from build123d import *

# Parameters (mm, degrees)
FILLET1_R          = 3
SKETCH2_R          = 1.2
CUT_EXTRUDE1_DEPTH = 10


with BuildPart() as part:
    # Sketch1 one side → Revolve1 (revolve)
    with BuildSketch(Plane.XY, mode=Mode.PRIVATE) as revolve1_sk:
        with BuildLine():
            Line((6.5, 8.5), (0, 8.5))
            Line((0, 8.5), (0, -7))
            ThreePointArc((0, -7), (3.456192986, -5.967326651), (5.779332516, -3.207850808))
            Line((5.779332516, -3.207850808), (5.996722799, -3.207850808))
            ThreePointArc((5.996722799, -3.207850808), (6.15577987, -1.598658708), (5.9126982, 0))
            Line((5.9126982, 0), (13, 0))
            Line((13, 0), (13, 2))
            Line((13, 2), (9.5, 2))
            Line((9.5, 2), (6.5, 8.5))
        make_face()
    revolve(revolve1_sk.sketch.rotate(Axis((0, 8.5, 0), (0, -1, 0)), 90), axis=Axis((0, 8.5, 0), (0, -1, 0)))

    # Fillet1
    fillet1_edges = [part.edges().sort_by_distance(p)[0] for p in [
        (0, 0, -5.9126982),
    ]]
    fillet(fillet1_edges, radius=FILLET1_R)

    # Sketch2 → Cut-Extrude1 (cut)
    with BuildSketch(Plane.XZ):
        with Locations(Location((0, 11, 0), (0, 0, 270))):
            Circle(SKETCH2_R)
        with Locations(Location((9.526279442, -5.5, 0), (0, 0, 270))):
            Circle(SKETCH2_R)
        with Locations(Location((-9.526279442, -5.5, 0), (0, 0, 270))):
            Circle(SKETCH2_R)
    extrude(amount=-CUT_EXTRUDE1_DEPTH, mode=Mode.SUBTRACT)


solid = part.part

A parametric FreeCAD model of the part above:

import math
import FreeCAD as App
import Part
import Sketcher


def edges_at(feature, points):
    """Names of the edges that pass closest to the given points."""
    edges = feature.Shape.Edges
    near = lambda p: min(range(len(edges)), key=lambda i: edges[i].distToShape(Part.Vertex(*p))[0])
    return sorted({f"Edge{near(p) + 1}" for p in points})

doc = App.newDocument("Part")
body = doc.addObject("PartDesign::Body", "Body")

sketch1 = body.newObject("Sketcher::SketchObject", "Sketch")
sketch1.AttachmentSupport = (doc.getObject("XY_Plane"), [""])
sketch1.MapMode = "FlatFace"
sketch1.addGeometry(Part.LineSegment(App.Vector(6.5, 8.5, 0), App.Vector(0, 8.5, 0)), False)
sketch1.addGeometry(Part.LineSegment(App.Vector(0, 8.5, 0), App.Vector(0, -7, 0)), False)
sketch1.addGeometry(Part.ArcOfCircle(Part.Circle(App.Vector(0, -0.7, 0), App.Vector(0, 0, 1), 6.3), math.radians(-90), math.radians(-23)), False)
sketch1.addGeometry(Part.LineSegment(App.Vector(5.78, -3.21, 0), App.Vector(6, -3.21, 0)), False)
sketch1.addGeometry(Part.ArcOfCircle(Part.Circle(App.Vector(-0.34, -1.77, 0), App.Vector(0, 0, 1), 6.5), math.radians(-13), math.radians(16)), False)
sketch1.addGeometry(Part.LineSegment(App.Vector(5.91, 0, 0), App.Vector(13, 0, 0)), False)
sketch1.addGeometry(Part.LineSegment(App.Vector(13, 0, 0), App.Vector(13, 2, 0)), False)
sketch1.addGeometry(Part.LineSegment(App.Vector(13, 2, 0), App.Vector(9.5, 2, 0)), False)
sketch1.addGeometry(Part.LineSegment(App.Vector(9.5, 2, 0), App.Vector(6.5, 8.5, 0)), False)
sketch1.addConstraint(Sketcher.Constraint("Coincident", 0, 2, 1, 1))
sketch1.addConstraint(Sketcher.Constraint("Coincident", 1, 2, 2, 1))
sketch1.addConstraint(Sketcher.Constraint("Coincident", 2, 2, 3, 1))
sketch1.addConstraint(Sketcher.Constraint("Coincident", 3, 2, 4, 1))
sketch1.addConstraint(Sketcher.Constraint("Coincident", 4, 2, 5, 1))
sketch1.addConstraint(Sketcher.Constraint("Coincident", 5, 2, 6, 1))
sketch1.addConstraint(Sketcher.Constraint("Coincident", 6, 2, 7, 1))
sketch1.addConstraint(Sketcher.Constraint("Coincident", 7, 2, 8, 1))
sketch1.addConstraint(Sketcher.Constraint("Coincident", 8, 2, 0, 1))
sketch1.addConstraint(Sketcher.Constraint("Horizontal", 0))
sketch1.addConstraint(Sketcher.Constraint("Vertical", 1))
sketch1.addConstraint(Sketcher.Constraint("Horizontal", 3))
sketch1.addConstraint(Sketcher.Constraint("Horizontal", 5))
sketch1.addConstraint(Sketcher.Constraint("Vertical", 6))
sketch1.addConstraint(Sketcher.Constraint("Horizontal", 7))
sketch1.addConstraint(Sketcher.Constraint("PointOnObject", 2, 3, -2))
sketch1.addConstraint(Sketcher.Constraint("PointOnObject", 0, 2, -2))
sketch1.addConstraint(Sketcher.Constraint("PointOnObject", 4, 2, -1))
sketch1.addConstraint(Sketcher.Constraint("Radius", 2, 6.3))
sketch1.addConstraint(Sketcher.Constraint("Radius", 4, 6.5))
sketch1.addConstraint(Sketcher.Constraint("DistanceY", 6, 1, 6, 2, 2.0))
sketch1.addConstraint(Sketcher.Constraint("DistanceX", 0, 2, 0, 1, 6.5))
sketch1.addConstraint(Sketcher.Constraint("DistanceX", 7, 2, 7, 1, 3.5))
sketch1.addConstraint(Sketcher.Constraint("DistanceY", 1, 2, 1, 1, 15.5))
sketch1.addConstraint(Sketcher.Constraint("DistanceY", 1, 2, -1, 1, 7.0))
sketch1.addConstraint(Sketcher.Constraint("DistanceX", -1, 1, 5, 2, 13.0))
sketch1.addConstraint(Sketcher.Constraint("DistanceX", 5, 1, 5, 2, 7.087302))
sketch1.addConstraint(Sketcher.Constraint("DistanceX", 3, 1, 3, 2, 0.21739))
sketch1.addConstraint(Sketcher.Constraint("DistanceX", 4, 3, -1, 1, 0.341991))
revolution = body.newObject("PartDesign::Revolution", "Revolution")
revolution.Profile = sketch1
revolution.ReferenceAxis = (sketch1, ["V_Axis"])
revolution.Angle = 360
doc.recompute()

fillet = body.newObject("PartDesign::Fillet", "Fillet")
fillet.Base = (revolution, edges_at(revolution, [(0, 0, -5.913)]))
fillet.Radius = 3

sketch2 = body.newObject("Sketcher::SketchObject", "Sketch001")
sketch2.AttachmentSupport = (doc.getObject("XZ_Plane"), [""])
sketch2.MapMode = "FlatFace"
sketch2.addGeometry(Part.Circle(App.Vector(0, 11, 0), App.Vector(0, 0, 1), 1.2), False)
sketch2.addGeometry(Part.Circle(App.Vector(9.5, -5.5, 0), App.Vector(0, 0, 1), 1.2), False)
sketch2.addGeometry(Part.Circle(App.Vector(-9.5, -5.5, 0), App.Vector(0, 0, 1), 1.2), False)
sketch2.addConstraint(Sketcher.Constraint("Equal", 0, 1))
sketch2.addConstraint(Sketcher.Constraint("Equal", 1, 2))
sketch2.addConstraint(Sketcher.Constraint("Symmetric", 1, 3, 2, 3, -2))
sketch2.addConstraint(Sketcher.Constraint("PointOnObject", 0, 3, -2))
sketch2.addConstraint(Sketcher.Constraint("Diameter", 0, 2.4))
sketch2.addConstraint(Sketcher.Constraint("DistanceY", -1, 1, 0, 3, 11.0))
sketch2.addConstraint(Sketcher.Constraint("DistanceY", 1, 3, -1, 1, 5.5))
sketch2.addConstraint(Sketcher.Constraint("DistanceX", -1, 1, 1, 3, 9.526279))
pocket1 = body.newObject("PartDesign::Pocket", "Pocket")
pocket1.Profile = sketch2
pocket1.Length = 10

doc.recompute()
